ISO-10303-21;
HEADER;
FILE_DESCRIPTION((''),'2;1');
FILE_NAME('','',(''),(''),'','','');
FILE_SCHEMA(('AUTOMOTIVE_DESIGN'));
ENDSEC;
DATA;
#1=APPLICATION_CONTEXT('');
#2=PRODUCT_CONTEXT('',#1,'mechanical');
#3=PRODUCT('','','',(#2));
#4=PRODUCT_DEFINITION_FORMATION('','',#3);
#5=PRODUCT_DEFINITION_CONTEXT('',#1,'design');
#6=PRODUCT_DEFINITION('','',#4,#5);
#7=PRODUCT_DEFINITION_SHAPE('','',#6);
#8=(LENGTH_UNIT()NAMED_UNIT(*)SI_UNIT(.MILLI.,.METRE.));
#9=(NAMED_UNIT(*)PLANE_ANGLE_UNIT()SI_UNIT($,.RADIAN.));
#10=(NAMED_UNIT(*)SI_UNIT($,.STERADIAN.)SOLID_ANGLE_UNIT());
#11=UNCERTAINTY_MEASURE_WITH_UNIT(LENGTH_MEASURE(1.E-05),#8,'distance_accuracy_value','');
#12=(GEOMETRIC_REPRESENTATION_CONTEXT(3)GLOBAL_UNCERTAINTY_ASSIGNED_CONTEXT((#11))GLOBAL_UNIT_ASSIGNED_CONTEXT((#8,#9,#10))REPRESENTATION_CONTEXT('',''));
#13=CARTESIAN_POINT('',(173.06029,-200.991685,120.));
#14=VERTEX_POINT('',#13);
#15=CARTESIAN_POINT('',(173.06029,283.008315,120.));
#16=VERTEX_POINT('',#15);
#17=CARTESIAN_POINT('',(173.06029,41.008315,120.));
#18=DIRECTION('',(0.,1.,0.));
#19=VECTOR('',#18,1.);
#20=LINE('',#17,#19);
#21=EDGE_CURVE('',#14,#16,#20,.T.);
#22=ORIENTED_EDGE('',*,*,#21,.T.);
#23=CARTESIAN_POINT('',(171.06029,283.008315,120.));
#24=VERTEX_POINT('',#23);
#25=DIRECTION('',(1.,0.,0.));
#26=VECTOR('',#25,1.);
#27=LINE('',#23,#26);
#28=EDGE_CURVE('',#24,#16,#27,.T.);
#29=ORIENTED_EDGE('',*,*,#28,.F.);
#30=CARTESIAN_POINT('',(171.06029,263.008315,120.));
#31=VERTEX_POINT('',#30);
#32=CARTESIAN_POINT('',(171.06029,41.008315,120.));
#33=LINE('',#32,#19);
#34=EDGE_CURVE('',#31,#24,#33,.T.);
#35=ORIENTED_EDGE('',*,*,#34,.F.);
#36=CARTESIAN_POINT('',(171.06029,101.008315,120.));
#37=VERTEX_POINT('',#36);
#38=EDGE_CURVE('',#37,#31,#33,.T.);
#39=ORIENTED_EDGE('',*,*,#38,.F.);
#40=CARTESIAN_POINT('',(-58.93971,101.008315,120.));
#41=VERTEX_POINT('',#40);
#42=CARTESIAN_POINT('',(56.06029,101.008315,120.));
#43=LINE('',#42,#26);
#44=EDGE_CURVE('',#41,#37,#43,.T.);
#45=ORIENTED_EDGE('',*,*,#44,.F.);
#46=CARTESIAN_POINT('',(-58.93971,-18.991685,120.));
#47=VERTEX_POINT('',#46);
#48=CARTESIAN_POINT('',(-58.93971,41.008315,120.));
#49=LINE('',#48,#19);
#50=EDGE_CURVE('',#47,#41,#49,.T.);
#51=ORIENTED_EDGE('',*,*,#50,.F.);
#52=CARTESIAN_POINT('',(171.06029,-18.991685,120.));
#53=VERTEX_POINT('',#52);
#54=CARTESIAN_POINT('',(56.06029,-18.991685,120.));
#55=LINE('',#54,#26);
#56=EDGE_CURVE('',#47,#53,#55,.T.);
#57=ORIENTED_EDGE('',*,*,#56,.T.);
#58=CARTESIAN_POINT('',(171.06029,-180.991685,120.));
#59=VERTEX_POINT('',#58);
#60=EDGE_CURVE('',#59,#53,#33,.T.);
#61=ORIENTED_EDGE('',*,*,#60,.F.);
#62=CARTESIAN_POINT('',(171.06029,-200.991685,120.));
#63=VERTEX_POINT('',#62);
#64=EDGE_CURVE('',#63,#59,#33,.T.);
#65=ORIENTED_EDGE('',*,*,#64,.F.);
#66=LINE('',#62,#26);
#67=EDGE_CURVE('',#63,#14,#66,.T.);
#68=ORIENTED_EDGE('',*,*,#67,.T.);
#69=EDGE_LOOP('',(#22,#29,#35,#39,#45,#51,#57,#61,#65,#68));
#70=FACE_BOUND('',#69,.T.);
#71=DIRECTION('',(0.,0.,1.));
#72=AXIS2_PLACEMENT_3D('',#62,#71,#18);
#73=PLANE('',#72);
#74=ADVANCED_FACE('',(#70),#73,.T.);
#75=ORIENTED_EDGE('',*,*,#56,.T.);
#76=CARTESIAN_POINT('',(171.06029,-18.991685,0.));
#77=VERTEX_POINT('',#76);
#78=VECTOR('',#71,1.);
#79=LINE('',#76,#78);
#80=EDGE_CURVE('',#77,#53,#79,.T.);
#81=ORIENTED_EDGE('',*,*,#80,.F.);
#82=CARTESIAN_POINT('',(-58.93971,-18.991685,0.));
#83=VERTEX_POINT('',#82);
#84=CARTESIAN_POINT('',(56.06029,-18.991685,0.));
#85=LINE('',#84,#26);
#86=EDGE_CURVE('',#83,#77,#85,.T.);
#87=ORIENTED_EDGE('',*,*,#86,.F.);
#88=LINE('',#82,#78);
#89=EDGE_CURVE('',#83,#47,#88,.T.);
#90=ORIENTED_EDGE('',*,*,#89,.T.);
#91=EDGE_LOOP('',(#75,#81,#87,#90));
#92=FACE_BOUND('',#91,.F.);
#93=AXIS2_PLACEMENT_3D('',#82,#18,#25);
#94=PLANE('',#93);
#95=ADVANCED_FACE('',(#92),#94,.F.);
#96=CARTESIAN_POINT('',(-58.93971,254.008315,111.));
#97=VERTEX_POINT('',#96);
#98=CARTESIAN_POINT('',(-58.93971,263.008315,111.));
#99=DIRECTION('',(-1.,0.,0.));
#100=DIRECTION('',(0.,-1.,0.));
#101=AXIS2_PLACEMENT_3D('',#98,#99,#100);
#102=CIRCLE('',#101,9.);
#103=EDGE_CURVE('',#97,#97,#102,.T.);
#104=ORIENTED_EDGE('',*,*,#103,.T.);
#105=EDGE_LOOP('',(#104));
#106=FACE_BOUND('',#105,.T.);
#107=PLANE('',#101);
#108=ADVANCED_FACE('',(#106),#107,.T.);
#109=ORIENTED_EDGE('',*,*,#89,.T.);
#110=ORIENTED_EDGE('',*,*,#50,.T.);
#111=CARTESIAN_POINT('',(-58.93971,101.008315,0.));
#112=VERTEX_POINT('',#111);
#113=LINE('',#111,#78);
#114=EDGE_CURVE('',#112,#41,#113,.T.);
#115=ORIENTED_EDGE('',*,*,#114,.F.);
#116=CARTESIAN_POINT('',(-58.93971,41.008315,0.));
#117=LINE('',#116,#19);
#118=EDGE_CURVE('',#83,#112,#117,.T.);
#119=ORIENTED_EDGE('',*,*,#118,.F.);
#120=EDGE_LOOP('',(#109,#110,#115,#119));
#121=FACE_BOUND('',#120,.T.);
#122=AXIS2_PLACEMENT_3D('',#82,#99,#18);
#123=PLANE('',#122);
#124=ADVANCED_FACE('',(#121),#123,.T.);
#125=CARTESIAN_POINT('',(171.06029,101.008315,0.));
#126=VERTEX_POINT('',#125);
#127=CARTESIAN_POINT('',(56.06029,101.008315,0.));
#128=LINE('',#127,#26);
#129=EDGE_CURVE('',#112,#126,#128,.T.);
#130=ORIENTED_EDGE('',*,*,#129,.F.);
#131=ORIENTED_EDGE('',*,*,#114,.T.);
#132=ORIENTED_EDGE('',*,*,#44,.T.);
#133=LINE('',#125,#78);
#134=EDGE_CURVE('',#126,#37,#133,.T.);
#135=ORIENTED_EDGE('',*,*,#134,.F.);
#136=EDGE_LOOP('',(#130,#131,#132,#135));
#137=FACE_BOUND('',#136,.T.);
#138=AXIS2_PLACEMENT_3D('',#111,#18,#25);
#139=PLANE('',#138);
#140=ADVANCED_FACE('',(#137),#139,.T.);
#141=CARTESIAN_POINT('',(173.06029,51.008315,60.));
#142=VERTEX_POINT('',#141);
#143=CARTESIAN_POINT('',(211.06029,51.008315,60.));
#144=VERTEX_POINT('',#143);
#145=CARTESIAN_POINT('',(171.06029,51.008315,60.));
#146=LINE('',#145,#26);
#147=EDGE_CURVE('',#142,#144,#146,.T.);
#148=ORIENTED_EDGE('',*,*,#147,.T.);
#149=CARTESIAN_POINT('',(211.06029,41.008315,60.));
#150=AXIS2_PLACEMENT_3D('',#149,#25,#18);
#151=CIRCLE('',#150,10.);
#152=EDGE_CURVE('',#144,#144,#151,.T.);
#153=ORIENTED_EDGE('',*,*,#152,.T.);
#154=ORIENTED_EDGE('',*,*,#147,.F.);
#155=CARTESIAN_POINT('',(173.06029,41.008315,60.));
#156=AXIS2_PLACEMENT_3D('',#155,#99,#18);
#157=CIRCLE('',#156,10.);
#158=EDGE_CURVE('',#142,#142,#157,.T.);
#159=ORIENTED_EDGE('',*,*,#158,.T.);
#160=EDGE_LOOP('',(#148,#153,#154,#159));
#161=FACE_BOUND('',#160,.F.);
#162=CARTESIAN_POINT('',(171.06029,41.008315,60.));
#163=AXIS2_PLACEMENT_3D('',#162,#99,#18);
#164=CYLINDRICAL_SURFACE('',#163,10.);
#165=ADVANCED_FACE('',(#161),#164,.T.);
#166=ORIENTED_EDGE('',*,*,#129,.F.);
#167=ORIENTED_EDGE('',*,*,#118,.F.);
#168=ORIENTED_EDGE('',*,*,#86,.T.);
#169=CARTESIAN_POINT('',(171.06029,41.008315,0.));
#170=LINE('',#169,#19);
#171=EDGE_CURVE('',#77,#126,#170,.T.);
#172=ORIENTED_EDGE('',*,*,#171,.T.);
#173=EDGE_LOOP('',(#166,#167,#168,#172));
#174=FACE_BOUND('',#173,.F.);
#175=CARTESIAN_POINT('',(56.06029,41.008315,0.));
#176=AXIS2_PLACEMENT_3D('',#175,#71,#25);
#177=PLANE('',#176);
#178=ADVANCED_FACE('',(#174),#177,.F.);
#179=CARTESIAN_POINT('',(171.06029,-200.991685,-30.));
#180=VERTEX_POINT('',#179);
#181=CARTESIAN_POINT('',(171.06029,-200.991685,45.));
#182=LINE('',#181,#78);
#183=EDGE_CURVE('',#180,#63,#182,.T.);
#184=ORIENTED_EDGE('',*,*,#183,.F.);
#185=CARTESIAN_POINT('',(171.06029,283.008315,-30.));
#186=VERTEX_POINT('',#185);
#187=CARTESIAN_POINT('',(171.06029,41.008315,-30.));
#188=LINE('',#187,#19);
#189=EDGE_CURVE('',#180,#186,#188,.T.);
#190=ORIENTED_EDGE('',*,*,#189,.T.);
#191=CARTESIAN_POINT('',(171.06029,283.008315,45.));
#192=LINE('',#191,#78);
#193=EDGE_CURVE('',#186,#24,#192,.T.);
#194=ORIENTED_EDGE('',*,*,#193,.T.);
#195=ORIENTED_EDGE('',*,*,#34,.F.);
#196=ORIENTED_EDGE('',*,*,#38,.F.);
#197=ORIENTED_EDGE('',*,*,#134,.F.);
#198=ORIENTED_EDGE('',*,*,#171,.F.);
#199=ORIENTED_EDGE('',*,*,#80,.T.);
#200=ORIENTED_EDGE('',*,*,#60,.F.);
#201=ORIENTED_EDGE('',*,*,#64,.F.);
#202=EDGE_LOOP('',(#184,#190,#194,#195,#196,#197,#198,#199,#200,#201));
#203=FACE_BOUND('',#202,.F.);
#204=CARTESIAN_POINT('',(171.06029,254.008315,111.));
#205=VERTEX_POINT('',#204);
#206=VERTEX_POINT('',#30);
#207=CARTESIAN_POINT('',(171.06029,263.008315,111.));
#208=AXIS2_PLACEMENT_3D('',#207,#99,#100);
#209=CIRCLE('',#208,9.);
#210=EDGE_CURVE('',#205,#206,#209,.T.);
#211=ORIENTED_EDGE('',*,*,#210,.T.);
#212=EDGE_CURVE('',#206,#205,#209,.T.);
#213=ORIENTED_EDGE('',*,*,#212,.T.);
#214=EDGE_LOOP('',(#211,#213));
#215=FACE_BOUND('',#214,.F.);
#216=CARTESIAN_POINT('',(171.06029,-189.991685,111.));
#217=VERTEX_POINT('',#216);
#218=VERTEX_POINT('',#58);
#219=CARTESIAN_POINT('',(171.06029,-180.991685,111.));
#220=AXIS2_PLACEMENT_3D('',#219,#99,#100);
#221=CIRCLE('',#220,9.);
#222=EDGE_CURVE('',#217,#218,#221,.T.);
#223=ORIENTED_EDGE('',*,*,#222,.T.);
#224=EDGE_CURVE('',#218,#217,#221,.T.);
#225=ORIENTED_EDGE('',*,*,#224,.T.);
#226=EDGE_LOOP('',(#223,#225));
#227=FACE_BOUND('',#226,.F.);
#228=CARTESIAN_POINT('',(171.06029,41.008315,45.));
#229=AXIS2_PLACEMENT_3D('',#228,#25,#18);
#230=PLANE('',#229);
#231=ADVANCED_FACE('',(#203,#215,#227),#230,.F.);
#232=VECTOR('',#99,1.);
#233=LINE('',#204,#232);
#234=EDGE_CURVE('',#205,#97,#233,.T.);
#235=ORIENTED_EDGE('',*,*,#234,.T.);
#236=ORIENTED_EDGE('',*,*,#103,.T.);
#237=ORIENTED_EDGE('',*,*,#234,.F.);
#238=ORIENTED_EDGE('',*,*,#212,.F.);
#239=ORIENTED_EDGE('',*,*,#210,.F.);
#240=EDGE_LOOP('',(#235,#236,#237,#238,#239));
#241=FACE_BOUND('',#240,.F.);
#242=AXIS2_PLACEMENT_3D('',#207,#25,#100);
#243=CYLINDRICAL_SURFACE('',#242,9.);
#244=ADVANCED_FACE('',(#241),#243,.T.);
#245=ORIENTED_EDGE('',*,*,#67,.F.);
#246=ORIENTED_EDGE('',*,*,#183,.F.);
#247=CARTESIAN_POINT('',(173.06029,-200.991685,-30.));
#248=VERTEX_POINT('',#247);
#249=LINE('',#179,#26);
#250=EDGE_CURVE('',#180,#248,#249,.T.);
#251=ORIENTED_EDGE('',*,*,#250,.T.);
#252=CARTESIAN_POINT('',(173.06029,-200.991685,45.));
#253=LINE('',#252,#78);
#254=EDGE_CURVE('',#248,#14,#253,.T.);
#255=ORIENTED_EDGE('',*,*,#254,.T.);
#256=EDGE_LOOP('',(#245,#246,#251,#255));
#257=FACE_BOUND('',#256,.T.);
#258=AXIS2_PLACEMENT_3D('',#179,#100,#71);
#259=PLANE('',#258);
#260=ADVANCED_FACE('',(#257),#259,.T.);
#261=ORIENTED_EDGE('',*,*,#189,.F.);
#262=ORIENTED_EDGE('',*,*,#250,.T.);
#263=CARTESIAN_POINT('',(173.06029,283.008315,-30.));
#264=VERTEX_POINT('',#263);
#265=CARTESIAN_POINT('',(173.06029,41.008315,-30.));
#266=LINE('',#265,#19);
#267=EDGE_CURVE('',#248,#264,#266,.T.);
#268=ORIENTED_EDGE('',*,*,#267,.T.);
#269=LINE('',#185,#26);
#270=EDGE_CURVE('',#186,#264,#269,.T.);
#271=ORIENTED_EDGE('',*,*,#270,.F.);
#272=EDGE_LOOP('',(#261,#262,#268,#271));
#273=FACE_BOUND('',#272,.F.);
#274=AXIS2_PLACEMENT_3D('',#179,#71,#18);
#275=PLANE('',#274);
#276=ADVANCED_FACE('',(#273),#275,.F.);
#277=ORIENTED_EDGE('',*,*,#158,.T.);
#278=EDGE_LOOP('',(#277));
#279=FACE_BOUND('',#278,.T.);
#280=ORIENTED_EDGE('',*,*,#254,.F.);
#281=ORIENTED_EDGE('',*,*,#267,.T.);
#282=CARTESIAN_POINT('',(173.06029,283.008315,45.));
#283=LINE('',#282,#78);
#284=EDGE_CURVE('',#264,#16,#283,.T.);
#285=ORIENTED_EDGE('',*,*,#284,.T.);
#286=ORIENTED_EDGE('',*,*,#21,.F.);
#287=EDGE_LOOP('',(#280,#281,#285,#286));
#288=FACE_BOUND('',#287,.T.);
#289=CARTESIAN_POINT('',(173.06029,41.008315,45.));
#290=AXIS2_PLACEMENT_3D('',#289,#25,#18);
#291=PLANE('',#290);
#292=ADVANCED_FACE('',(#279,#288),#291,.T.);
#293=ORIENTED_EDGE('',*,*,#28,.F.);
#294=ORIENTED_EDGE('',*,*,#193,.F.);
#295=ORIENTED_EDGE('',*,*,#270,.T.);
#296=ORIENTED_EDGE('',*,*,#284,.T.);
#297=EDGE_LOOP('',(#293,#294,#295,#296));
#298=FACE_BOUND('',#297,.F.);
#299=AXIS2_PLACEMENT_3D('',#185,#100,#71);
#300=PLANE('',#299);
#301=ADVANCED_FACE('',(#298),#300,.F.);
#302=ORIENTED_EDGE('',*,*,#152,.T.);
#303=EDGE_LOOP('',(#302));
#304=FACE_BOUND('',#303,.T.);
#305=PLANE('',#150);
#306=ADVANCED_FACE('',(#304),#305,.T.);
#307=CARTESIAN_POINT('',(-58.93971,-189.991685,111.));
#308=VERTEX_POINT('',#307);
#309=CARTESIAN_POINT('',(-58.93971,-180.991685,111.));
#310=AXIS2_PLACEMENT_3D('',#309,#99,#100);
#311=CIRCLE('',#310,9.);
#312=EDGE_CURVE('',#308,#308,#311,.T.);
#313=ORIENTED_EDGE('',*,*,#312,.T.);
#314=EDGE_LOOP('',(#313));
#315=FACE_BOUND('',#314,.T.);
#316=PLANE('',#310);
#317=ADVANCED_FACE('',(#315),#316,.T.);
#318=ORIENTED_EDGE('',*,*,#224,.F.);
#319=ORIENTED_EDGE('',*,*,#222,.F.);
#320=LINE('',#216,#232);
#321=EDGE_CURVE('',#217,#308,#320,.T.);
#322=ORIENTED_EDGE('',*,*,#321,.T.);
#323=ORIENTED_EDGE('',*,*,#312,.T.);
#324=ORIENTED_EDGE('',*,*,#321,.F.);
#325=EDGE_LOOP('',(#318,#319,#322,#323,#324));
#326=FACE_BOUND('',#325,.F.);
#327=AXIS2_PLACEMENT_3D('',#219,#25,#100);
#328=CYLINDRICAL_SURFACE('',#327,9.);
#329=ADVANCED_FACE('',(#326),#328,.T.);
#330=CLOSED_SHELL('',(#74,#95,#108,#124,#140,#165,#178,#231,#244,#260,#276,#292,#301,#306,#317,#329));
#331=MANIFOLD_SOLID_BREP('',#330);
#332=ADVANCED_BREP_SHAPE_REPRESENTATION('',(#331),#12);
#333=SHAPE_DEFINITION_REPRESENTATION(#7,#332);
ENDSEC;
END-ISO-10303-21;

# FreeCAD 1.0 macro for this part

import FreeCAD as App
import Part
import Sketcher

V = App.Vector


def add_polygon(sketch, points):
    """Adds a closed chain of lines whose ends are joined by coincident constraints."""
    first, n = sketch.GeometryCount, len(points)
    for a, b in zip(points, points[1:] + points[:1]):
        sketch.addGeometry(Part.LineSegment(App.Vector(*a, 0), App.Vector(*b, 0)), False)
    for i in range(n):
        sketch.addConstraint(Sketcher.Constraint("Coincident", first + i, 2, first + (i + 1) % n, 1))

doc = App.newDocument("Part")
body = doc.addObject("PartDesign::Body", "Body")

# Sketch on XY plane
sketch1 = body.newObject("Sketcher::SketchObject", "Sketch")
sketch1.AttachmentSupport = (doc.getObject("XY_Plane"), [""])
sketch1.MapMode = "FlatFace"
add_polygon(sketch1, [(-59, 101), (-59, -19), (171, -19), (171, 101)])  # lines 0-3
sketch1.addConstraint(Sketcher.Constraint("Vertical", 0))
sketch1.addConstraint(Sketcher.Constraint("Horizontal", 1))
sketch1.addConstraint(Sketcher.Constraint("Vertical", 2))
sketch1.addConstraint(Sketcher.Constraint("Horizontal", 3))
sketch1.addConstraint(Sketcher.Constraint("DistanceX", 1, 1, 1, 2, 230.0))
sketch1.addConstraint(Sketcher.Constraint("DistanceY", 0, 2, 0, 1, 120.0))
sketch1.addConstraint(Sketcher.Constraint("DistanceX", 0, 2, -1, 1, 58.93971))
sketch1.addConstraint(Sketcher.Constraint("DistanceY", 0, 2, -1, 1, 18.991685))
pad1 = body.newObject("PartDesign::Pad", "Pad")
pad1.Profile = sketch1
pad1.Length = 120

# Sketch on YZ plane
sketch2 = body.newObject("Sketcher::SketchObject", "Sketch001")
sketch2.AttachmentSupport = (doc.getObject("YZ_Plane"), [""])
sketch2.MapMode = "FlatFace"
sketch2.AttachmentOffset = App.Placement(V(0, 0, 171.06029), App.Rotation())
sketch2.addGeometry(Part.Circle(V(41, 60, 0), V(0, 0, 1), 10), False)
sketch2.addConstraint(Sketcher.Constraint("Diameter", 0, 20.0))
sketch2.addConstraint(Sketcher.Constraint("DistanceY", -1, 1, 0, 3, 60.0))
sketch2.addConstraint(Sketcher.Constraint("DistanceX", -1, 1, 0, 3, 41.008315))
pad2 = body.newObject("PartDesign::Pad", "Pad001")
pad2.Profile = sketch2
pad2.Length = 40

# Sketch on YZ plane
sketch3 = body.newObject("Sketcher::SketchObject", "Sketch002")
sketch3.AttachmentSupport = (doc.getObject("YZ_Plane"), [""])
sketch3.MapMode = "FlatFace"
sketch3.AttachmentOffset = App.Placement(V(0, 0, 171.06029), App.Rotation())
add_polygon(sketch3, [(-201, 120), (-201, -30), (283, -30), (283, 120)])  # lines 0-3
sketch3.addConstraint(Sketcher.Constraint("Vertical", 0))
sketch3.addConstraint(Sketcher.Constraint("Horizontal", 1))
sketch3.addConstraint(Sketcher.Constraint("Vertical", 2))
sketch3.addConstraint(Sketcher.Constraint("Horizontal", 3))
sketch3.addConstraint(Sketcher.Constraint("DistanceX", 1, 1, 1, 2, 484.0))
sketch3.addConstraint(Sketcher.Constraint("DistanceY", 0, 2, 0, 1, 150.0))
sketch3.addConstraint(Sketcher.Constraint("DistanceY", 0, 2, -1, 1, 30.0))
sketch3.addConstraint(Sketcher.Constraint("DistanceX", 0, 2, -1, 1, 200.991685))
pad3 = body.newObject("PartDesign::Pad", "Pad002")
pad3.Profile = sketch3
pad3.Length = 2

# Sketch on YZ plane
sketch4 = body.newObject("Sketcher::SketchObject", "Sketch003")
sketch4.AttachmentSupport = (doc.getObject("YZ_Plane"), [""])
sketch4.MapMode = "FlatFace"
sketch4.AttachmentOffset = App.Placement(V(0, 0, 171.06029), App.Rotation())
sketch4.addGeometry(Part.Circle(V(-181, 111, 0), V(0, 0, 1), 9), False)
sketch4.addGeometry(Part.Circle(V(263, 111, 0), V(0, 0, 1), 9), False)
sketch4.addConstraint(Sketcher.Constraint("Equal", 0, 1))
sketch4.addConstraint(Sketcher.Constraint("Horizontal", 0, 3, 1, 3))
sketch4.addConstraint(Sketcher.Constraint("Diameter", 0, 18.0))
sketch4.addConstraint(Sketcher.Constraint("DistanceY", -1, 1, 0, 3, 111.0))
sketch4.addConstraint(Sketcher.Constraint("DistanceX", 0, 3, 1, 3, 444.0))
sketch4.addConstraint(Sketcher.Constraint("DistanceX", 0, 3, -1, 1, 180.991685))
pad4 = body.newObject("PartDesign::Pad", "Pad003")
pad4.Profile = sketch4
pad4.Length = 230
pad4.Reversed = True

doc.recompute()
